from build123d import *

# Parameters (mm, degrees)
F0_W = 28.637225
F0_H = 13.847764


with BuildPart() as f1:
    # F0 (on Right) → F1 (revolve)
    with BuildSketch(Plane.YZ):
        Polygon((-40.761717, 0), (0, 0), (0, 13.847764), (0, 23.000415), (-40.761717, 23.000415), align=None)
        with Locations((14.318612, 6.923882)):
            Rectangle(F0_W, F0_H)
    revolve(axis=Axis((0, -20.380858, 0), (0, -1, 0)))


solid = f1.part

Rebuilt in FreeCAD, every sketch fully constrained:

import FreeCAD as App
import Part
import Sketcher

V = App.Vector
Q = App.Units.Quantity

doc = App.newDocument("Part")
body = doc.addObject("PartDesign::Body", "Body")

sketch1 = body.newObject("Sketcher::SketchObject", "Sketch")
sketch1.AttachmentSupport = (doc.getObject("YZ_Plane"), [""])
sketch1.MapMode = "FlatFace"
sketch1.addGeometry([
    Part.LineSegment(V(-41, 23, 0), V(-41, 0, 0)),
    Part.LineSegment(V(-41, 0, 0), V(29, 0, 0)),
    Part.LineSegment(V(29, 0, 0), V(29, 14, 0)),
    Part.LineSegment(V(29, 14, 0), V(0, 14, 0)),
    Part.LineSegment(V(0, 14, 0), V(0, 23, 0)),
    Part.LineSegment(V(0, 23, 0), V(-41, 23, 0)),
], False)
sketch1.addConstraint([
    Sketcher.Constraint("Coincident", 0, 2, 1, 1),
    Sketcher.Constraint("Coincident", 1, 2, 2, 1),
    Sketcher.Constraint("Coincident", 2, 2, 3, 1),
    Sketcher.Constraint("Coincident", 3, 2, 4, 1),
    Sketcher.Constraint("Coincident", 4, 2, 5, 1),
    Sketcher.Constraint("Coincident", 5, 2, 0, 1),
    Sketcher.Constraint("Vertical", 0),
    Sketcher.Constraint("Horizontal", 1),
    Sketcher.Constraint("Vertical", 2),
    Sketcher.Constraint("Horizontal", 3),
    Sketcher.Constraint("Vertical", 4),
    Sketcher.Constraint("Horizontal", 5),
    Sketcher.Constraint("PointOnObject", 0, 2, -1),
    Sketcher.Constraint("PointOnObject", 3, 2, -2),
    Sketcher.Constraint("DistanceX", 1, 1, 1, 2, Q("69.398941 mm")),
    Sketcher.Constraint("DistanceY", 4, 1, 4, 2, Q("9.152651 mm")),
    Sketcher.Constraint("DistanceX", 3, 2, 3, 1, Q("28.637224 mm")),
    Sketcher.Constraint("DistanceY", 0, 2, 0, 1, Q("23.000415 mm")),
])
revolution = body.newObject("PartDesign::Revolution", "Revolution")
revolution.Profile = sketch1
revolution.ReferenceAxis = (sketch1, ["H_Axis"])
revolution.Angle = 360

doc.recompute()
